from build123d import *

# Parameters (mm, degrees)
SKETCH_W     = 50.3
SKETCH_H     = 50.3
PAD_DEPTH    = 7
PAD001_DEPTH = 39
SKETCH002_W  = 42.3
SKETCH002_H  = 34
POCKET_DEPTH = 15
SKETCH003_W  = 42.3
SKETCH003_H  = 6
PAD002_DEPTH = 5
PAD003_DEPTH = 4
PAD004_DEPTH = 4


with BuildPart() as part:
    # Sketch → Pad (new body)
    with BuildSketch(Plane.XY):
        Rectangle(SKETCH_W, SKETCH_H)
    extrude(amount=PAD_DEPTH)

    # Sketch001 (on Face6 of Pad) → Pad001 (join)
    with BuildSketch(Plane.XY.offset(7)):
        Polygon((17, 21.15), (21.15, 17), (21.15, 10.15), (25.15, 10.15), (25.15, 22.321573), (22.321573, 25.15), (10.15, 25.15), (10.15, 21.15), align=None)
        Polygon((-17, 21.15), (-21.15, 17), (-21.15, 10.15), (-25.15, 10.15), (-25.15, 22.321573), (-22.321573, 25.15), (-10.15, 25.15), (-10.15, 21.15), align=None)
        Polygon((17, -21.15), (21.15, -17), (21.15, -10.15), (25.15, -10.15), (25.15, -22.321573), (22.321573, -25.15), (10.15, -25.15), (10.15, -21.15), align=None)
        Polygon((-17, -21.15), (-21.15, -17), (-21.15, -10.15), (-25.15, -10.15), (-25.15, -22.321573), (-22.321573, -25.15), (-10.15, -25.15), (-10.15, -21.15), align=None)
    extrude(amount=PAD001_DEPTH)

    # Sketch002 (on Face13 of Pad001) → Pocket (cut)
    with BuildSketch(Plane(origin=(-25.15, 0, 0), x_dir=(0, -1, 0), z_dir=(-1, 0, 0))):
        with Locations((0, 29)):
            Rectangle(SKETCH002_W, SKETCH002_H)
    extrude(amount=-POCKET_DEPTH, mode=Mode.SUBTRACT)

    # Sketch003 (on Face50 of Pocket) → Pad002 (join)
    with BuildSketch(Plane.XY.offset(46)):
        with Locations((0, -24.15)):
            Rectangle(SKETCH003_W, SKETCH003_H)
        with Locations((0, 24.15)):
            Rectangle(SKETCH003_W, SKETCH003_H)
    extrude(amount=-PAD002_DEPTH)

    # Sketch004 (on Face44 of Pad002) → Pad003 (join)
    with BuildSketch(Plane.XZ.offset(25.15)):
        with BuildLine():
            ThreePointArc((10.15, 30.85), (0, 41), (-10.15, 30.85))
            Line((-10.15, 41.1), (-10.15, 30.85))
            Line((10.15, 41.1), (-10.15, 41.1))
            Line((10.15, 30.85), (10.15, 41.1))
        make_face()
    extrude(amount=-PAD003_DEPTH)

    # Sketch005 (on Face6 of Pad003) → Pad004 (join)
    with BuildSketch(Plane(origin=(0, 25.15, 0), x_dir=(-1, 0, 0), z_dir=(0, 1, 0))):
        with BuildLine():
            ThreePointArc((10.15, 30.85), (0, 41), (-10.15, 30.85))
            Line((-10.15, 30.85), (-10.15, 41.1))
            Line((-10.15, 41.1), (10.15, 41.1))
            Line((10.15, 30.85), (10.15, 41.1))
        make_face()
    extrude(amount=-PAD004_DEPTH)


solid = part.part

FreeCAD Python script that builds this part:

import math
import FreeCAD as App
import Part
import Sketcher
Q = App.Units.Quantity

doc = App.newDocument("Part")
body = doc.addObject("PartDesign::Body", "Body")

sketch1 = body.newObject("Sketcher::SketchObject", "Sketch")
sketch1.AttachmentSupport = (doc.getObject("XY_Plane"), [""])
sketch1.MapMode = "FlatFace"
sketch1.addGeometry([
    Part.LineSegment(App.Vector(-25.15, 25.15, 0), App.Vector(-25.15, -25.15, 0)),
    Part.LineSegment(App.Vector(-25.15, -25.15, 0), App.Vector(25.15, -25.15, 0)),
    Part.LineSegment(App.Vector(25.15, -25.15, 0), App.Vector(25.15, 25.15, 0)),
    Part.LineSegment(App.Vector(25.15, 25.15, 0), App.Vector(-25.15, 25.15, 0)),
], False)
sketch1.addConstraint([
    Sketcher.Constraint("Coincident", 0, 2, 1, 1),
    Sketcher.Constraint("Coincident", 1, 2, 2, 1),
    Sketcher.Constraint("Coincident", 2, 2, 3, 1),
    Sketcher.Constraint("Coincident", 3, 2, 0, 1),
    Sketcher.Constraint("Vertical", 0),
    Sketcher.Constraint("Horizontal", 1),
    Sketcher.Constraint("Vertical", 2),
    Sketcher.Constraint("Horizontal", 3),
    Sketcher.Constraint("Symmetric", 0, 2, 2, 2, -1, 1),
    Sketcher.Constraint("Equal", 3, 0),
    Sketcher.Constraint("DistanceX", 1, 1, 1, 2, Q("50.3 mm")),
])
pad1 = body.newObject("PartDesign::Pad", "Pad")
pad1.Profile = sketch1
pad1.Length = 7

sketch2 = body.newObject("Sketcher::SketchObject", "Sketch001")
sketch2.AttachmentSupport = (doc.getObject("XY_Plane"), [""])
sketch2.MapMode = "FlatFace"
sketch2.AttachmentOffset = App.Placement(App.Vector(0, 0, 7), App.Rotation())
sketch2.addGeometry([
    Part.LineSegment(App.Vector(17, 21.15, 0), App.Vector(21.15, 17, 0)),
    Part.LineSegment(App.Vector(21.15, 17, 0), App.Vector(21.15, 10.15, 0)),
    Part.LineSegment(App.Vector(21.15, 10.15, 0), App.Vector(25.15, 10.15, 0)),
    Part.LineSegment(App.Vector(25.15, 10.15, 0), App.Vector(25.15, 22.321573, 0)),
    Part.LineSegment(App.Vector(25.15, 22.321573, 0), App.Vector(22.321573, 25.15, 0)),
    Part.LineSegment(App.Vector(22.321573, 25.15, 0), App.Vector(10.15, 25.15, 0)),
    Part.LineSegment(App.Vector(10.15, 25.15, 0), App.Vector(10.15, 21.15, 0)),
    Part.LineSegment(App.Vector(10.15, 21.15, 0), App.Vector(17, 21.15, 0)),
    Part.LineSegment(App.Vector(-21.15, 17, 0), App.Vector(-17, 21.15, 0)),
    Part.LineSegment(App.Vector(-17, 21.15, 0), App.Vector(-10.15, 21.15, 0)),
    Part.LineSegment(App.Vector(-10.15, 21.15, 0), App.Vector(-10.15, 25.15, 0)),
    Part.LineSegment(App.Vector(-10.15, 25.15, 0), App.Vector(-22.321573, 25.15, 0)),
    Part.LineSegment(App.Vector(-22.321573, 25.15, 0), App.Vector(-25.15, 22.321573, 0)),
    Part.LineSegment(App.Vector(-25.15, 22.321573, 0), App.Vector(-25.15, 10.15, 0)),
    Part.LineSegment(App.Vector(-25.15, 10.15, 0), App.Vector(-21.15, 10.15, 0)),
    Part.LineSegment(App.Vector(-21.15, 10.15, 0), App.Vector(-21.15, 17, 0)),
    Part.LineSegment(App.Vector(21.15, -17, 0), App.Vector(17, -21.15, 0)),
    Part.LineSegment(App.Vector(17, -21.15, 0), App.Vector(10.15, -21.15, 0)),
    Part.LineSegment(App.Vector(10.15, -21.15, 0), App.Vector(10.15, -25.15, 0)),
    Part.LineSegment(App.Vector(10.15, -25.15, 0), App.Vector(22.321573, -25.15, 0)),
    Part.LineSegment(App.Vector(22.321573, -25.15, 0), App.Vector(25.15, -22.321573, 0)),
    Part.LineSegment(App.Vector(25.15, -22.321573, 0), App.Vector(25.15, -10.15, 0)),
    Part.LineSegment(App.Vector(25.15, -10.15, 0), App.Vector(21.15, -10.15, 0)),
    Part.LineSegment(App.Vector(21.15, -10.15, 0), App.Vector(21.15, -17, 0)),
    Part.LineSegment(App.Vector(-17, -21.15, 0), App.Vector(-21.15, -17, 0)),
    Part.LineSegment(App.Vector(-21.15, -17, 0), App.Vector(-21.15, -10.15, 0)),
    Part.LineSegment(App.Vector(-21.15, -10.15, 0), App.Vector(-25.15, -10.15, 0)),
    Part.LineSegment(App.Vector(-25.15, -10.15, 0), App.Vector(-25.15, -22.321573, 0)),
    Part.LineSegment(App.Vector(-25.15, -22.321573, 0), App.Vector(-22.321573, -25.15, 0)),
    Part.LineSegment(App.Vector(-22.321573, -25.15, 0), App.Vector(-10.15, -25.15, 0)),
    Part.LineSegment(App.Vector(-10.15, -25.15, 0), App.Vector(-10.15, -21.15, 0)),
    Part.LineSegment(App.Vector(-10.15, -21.15, 0), App.Vector(-17, -21.15, 0)),
], False)
sketch2.addConstraint([
    Sketcher.Constraint("Coincident", 0, 2, 1, 1),
    Sketcher.Constraint("Coincident", 1, 2, 2, 1),
    Sketcher.Constraint("Coincident", 2, 2, 3, 1),
    Sketcher.Constraint("Coincident", 3, 2, 4, 1),
    Sketcher.Constraint("Coincident", 4, 2, 5, 1),
    Sketcher.Constraint("Coincident", 5, 2, 6, 1),
    Sketcher.Constraint("Coincident", 6, 2, 7, 1),
    Sketcher.Constraint("Coincident", 7, 2, 0, 1),
    Sketcher.Constraint("Coincident", 8, 2, 9, 1),
    Sketcher.Constraint("Coincident", 9, 2, 10, 1),
    Sketcher.Constraint("Coincident", 10, 2, 11, 1),
    Sketcher.Constraint("Coincident", 11, 2, 12, 1),
    Sketcher.Constraint("Coincident", 12, 2, 13, 1),
    Sketcher.Constraint("Coincident", 13, 2, 14, 1),
    Sketcher.Constraint("Coincident", 14, 2, 15, 1),
    Sketcher.Constraint("Coincident", 15, 2, 8, 1),
    Sketcher.Constraint("Coincident", 16, 2, 17, 1),
    Sketcher.Constraint("Coincident", 17, 2, 18, 1),
    Sketcher.Constraint("Coincident", 18, 2, 19, 1),
    Sketcher.Constraint("Coincident", 19, 2, 20, 1),
    Sketcher.Constraint("Coincident", 20, 2, 21, 1),
    Sketcher.Constraint("Coincident", 21, 2, 22, 1),
    Sketcher.Constraint("Coincident", 22, 2, 23, 1),
    Sketcher.Constraint("Coincident", 23, 2, 16, 1),
    Sketcher.Constraint("Coincident", 24, 2, 25, 1),
    Sketcher.Constraint("Coincident", 25, 2, 26, 1),
    Sketcher.Constraint("Coincident", 26, 2, 27, 1),
    Sketcher.Constraint("Coincident", 27, 2, 28, 1),
    Sketcher.Constraint("Coincident", 28, 2, 29, 1),
    Sketcher.Constraint("Coincident", 29, 2, 30, 1),
    Sketcher.Constraint("Coincident", 30, 2, 31, 1),
    Sketcher.Constraint("Coincident", 31, 2, 24, 1),
    Sketcher.Constraint("Vertical", 1),
    Sketcher.Constraint("Horizontal", 2),
    Sketcher.Constraint("Vertical", 3),
    Sketcher.Constraint("Horizontal", 5),
    Sketcher.Constraint("Vertical", 6),
    Sketcher.Constraint("Horizontal", 7),
    Sketcher.Constraint("Horizontal", 9),
    Sketcher.Constraint("Vertical", 10),
    Sketcher.Constraint("Horizontal", 11),
    Sketcher.Constraint("Vertical", 13),
    Sketcher.Constraint("Horizontal", 14),
    Sketcher.Constraint("Vertical", 15),
    Sketcher.Constraint("Horizontal", 17),
    Sketcher.Constraint("Vertical", 18),
    Sketcher.Constraint("Horizontal", 19),
    Sketcher.Constraint("Vertical", 21),
    Sketcher.Constraint("Horizontal", 22),
    Sketcher.Constraint("Vertical", 23),
    Sketcher.Constraint("Vertical", 25),
    Sketcher.Constraint("Horizontal", 26),
    Sketcher.Constraint("Vertical", 27),
    Sketcher.Constraint("Horizontal", 29),
    Sketcher.Constraint("Vertical", 30),
    Sketcher.Constraint("Horizontal", 31),
    Sketcher.Constraint("Symmetric", 8, 2, 16, 2, -1, 1),
    Sketcher.Constraint("Symmetric", 10, 2, 18, 2, -1, 1),
    Sketcher.Constraint("Symmetric", 12, 2, 20, 2, -1, 1),
    Sketcher.Constraint("Symmetric", 14, 2, 22, 2, -1, 1),
    Sketcher.Constraint("Symmetric", 0, 2, 24, 2, -1, 1),
    Sketcher.Constraint("Symmetric", 2, 2, 26, 2, -1, 1),
    Sketcher.Constraint("Symmetric", 4, 2, 28, 2, -1, 1),
    Sketcher.Constraint("Symmetric", 6, 2, 30, 2, -1, 1),
    Sketcher.Constraint("Symmetric", 7, 2, 8, 2, -2),
    Sketcher.Constraint("Symmetric", 5, 2, 10, 2, -2),
    Sketcher.Constraint("Symmetric", 3, 2, 12, 2, -2),
    Sketcher.Constraint("Symmetric", 1, 2, 14, 2, -2),
    Sketcher.Constraint("Parallel", 0, 4),
    Sketcher.Constraint("Perpendicular", 4, 8),
    Sketcher.Constraint("Parallel", 8, 12),
    Sketcher.Constraint("Parallel", 12, 16),
    Sketcher.Constraint("Parallel", 16, 20),
    Sketcher.Constraint("Perpendicular", 20, 24),
    Sketcher.Constraint("Parallel", 24, 28),
    Sketcher.Constraint("Horizontal", 0, 2, 15, 2),
    Sketcher.Constraint("Equal", 31, 1),
    Sketcher.Constraint("Equal", 29, 3),
    Sketcher.Constraint("DistanceX", 2, 1, 2, 2, Q("4 mm")),
    Sketcher.Constraint("Distance", 4, Q("4 mm")),
    Sketcher.Constraint("DistanceY", -1, 1, 0, 2, Q("17 mm")),
    Sketcher.Constraint("DistanceX", -1, 1, 7, 2, Q("17 mm")),
    Sketcher.Constraint("DistanceY", 1, 2, 4, 2, Q("15 mm")),
    Sketcher.Constraint("DistanceX", 7, 1, 7, 2, Q("6.85 mm")),
])
pad2 = body.newObject("PartDesign::Pad", "Pad001")
pad2.Profile = sketch2
pad2.Length = 39

sketch3 = body.newObject("Sketcher::SketchObject", "Sketch002")
sketch3.AttachmentSupport = (doc.getObject("YZ_Plane"), [""])
sketch3.MapMode = "FlatFace"
sketch3.AttachmentOffset = App.Placement(App.Vector(0, 0, -25.15), App.Rotation())
sketch3.addGeometry([
    Part.LineSegment(App.Vector(21.15, 46, 0), App.Vector(21.15, 12, 0)),
    Part.LineSegment(App.Vector(21.15, 12, 0), App.Vector(-21.15, 12, 0)),
    Part.LineSegment(App.Vector(-21.15, 12, 0), App.Vector(-21.15, 46, 0)),
    Part.LineSegment(App.Vector(-21.15, 46, 0), App.Vector(21.15, 46, 0)),
], False)
sketch3.addConstraint([
    Sketcher.Constraint("Coincident", 0, 2, 1, 1),
    Sketcher.Constraint("Coincident", 1, 2, 2, 1),
    Sketcher.Constraint("Coincident", 2, 2, 3, 1),
    Sketcher.Constraint("Coincident", 3, 2, 0, 1),
    Sketcher.Constraint("Vertical", 0),
    Sketcher.Constraint("Horizontal", 1),
    Sketcher.Constraint("Vertical", 2),
    Sketcher.Constraint("Horizontal", 3),
    Sketcher.Constraint("DistanceY", 0, 2, 0, 1, Q("34 mm")),
    Sketcher.Constraint("DistanceX", 1, 2, 1, 1, Q("42.3 mm")),
    Sketcher.Constraint("DistanceY", -1, 1, 0, 2, Q("12 mm")),
    Sketcher.Constraint("DistanceX", -1, 1, 0, 2, Q("21.15 mm")),
])
pocket1 = body.newObject("PartDesign::Pocket", "Pocket")
pocket1.Profile = sketch3
pocket1.Length = 15
pocket1.Reversed = True

sketch4 = body.newObject("Sketcher::SketchObject", "Sketch003")
sketch4.AttachmentSupport = (doc.getObject("XY_Plane"), [""])
sketch4.MapMode = "FlatFace"
sketch4.AttachmentOffset = App.Placement(App.Vector(0, 0, 46), App.Rotation())
sketch4.addGeometry([
    Part.LineSegment(App.Vector(-21.15, -21.15, 0), App.Vector(-21.15, -27.15, 0)),
    Part.LineSegment(App.Vector(-21.15, -27.15, 0), App.Vector(21.15, -27.15, 0)),
    Part.LineSegment(App.Vector(21.15, -27.15, 0), App.Vector(21.15, -21.15, 0)),
    Part.LineSegment(App.Vector(21.15, -21.15, 0), App.Vector(-21.15, -21.15, 0)),
    Part.LineSegment(App.Vector(-21.15, 27.15, 0), App.Vector(-21.15, 21.15, 0)),
    Part.LineSegment(App.Vector(-21.15, 21.15, 0), App.Vector(21.15, 21.15, 0)),
    Part.LineSegment(App.Vector(21.15, 21.15, 0), App.Vector(21.15, 27.15, 0)),
    Part.LineSegment(App.Vector(21.15, 27.15, 0), App.Vector(-21.15, 27.15, 0)),
], False)
sketch4.addConstraint([
    Sketcher.Constraint("Coincident", 0, 2, 1, 1),
    Sketcher.Constraint("Coincident", 1, 2, 2, 1),
    Sketcher.Constraint("Coincident", 2, 2, 3, 1),
    Sketcher.Constraint("Coincident", 3, 2, 0, 1),
    Sketcher.Constraint("Coincident", 4, 2, 5, 1),
    Sketcher.Constraint("Coincident", 5, 2, 6, 1),
    Sketcher.Constraint("Coincident", 6, 2, 7, 1),
    Sketcher.Constraint("Coincident", 7, 2, 4, 1),
    Sketcher.Constraint("Vertical", 0),
    Sketcher.Constraint("Horizontal", 1),
    Sketcher.Constraint("Vertical", 2),
    Sketcher.Constraint("Horizontal", 3),
    Sketcher.Constraint("Vertical", 4),
    Sketcher.Constraint("Horizontal", 5),
    Sketcher.Constraint("Vertical", 6),
    Sketcher.Constraint("Horizontal", 7),
    Sketcher.Constraint("Symmetric", 2, 2, 4, 2, -1, 1),
    Sketcher.Constraint("Symmetric", 0, 2, 6, 2, -1, 1),
    Sketcher.Constraint("Vertical", 3, 2, 4, 2),
    Sketcher.Constraint("DistanceY", 0, 2, 0, 1, Q("6 mm")),
    Sketcher.Constraint("DistanceX", 1, 1, 1, 2, Q("42.3 mm")),
    Sketcher.Constraint("DistanceY", 3, 2, 4, 2, Q("42.3 mm")),
])
pad3 = body.newObject("PartDesign::Pad", "Pad002")
pad3.Profile = sketch4
pad3.Length = 5
pad3.Reversed = True

sketch5 = body.newObject("Sketcher::SketchObject", "Sketch004")
sketch5.AttachmentSupport = (doc.getObject("XZ_Plane"), [""])
sketch5.MapMode = "FlatFace"
sketch5.AttachmentOffset = App.Placement(App.Vector(0, 0, 25.15), App.Rotation())
sketch5.addGeometry([
    Part.ArcOfCircle(Part.Circle(App.Vector(0, 30.85, 0), App.Vector(0, 0, 1), 10.15), math.radians(0), math.radians(180)),
    Part.LineSegment(App.Vector(10.15, 30.85, 0), App.Vector(10.15, 41.1, 0)),
    Part.LineSegment(App.Vector(10.15, 41.1, 0), App.Vector(-10.15, 41.1, 0)),
    Part.LineSegment(App.Vector(-10.15, 41.1, 0), App.Vector(-10.15, 30.85, 0)),
], False)
sketch5.addConstraint([
    Sketcher.Constraint("Tangent", 0, 1, 1, 1),
    Sketcher.Constraint("Coincident", 1, 2, 2, 1),
    Sketcher.Constraint("Coincident", 2, 2, 3, 1),
    Sketcher.Constraint("Tangent", 3, 2, 0, 2),
    Sketcher.Constraint("Vertical", 1),
    Sketcher.Constraint("Horizontal", 2),
    Sketcher.Constraint("Vertical", 3),
    Sketcher.Constraint("PointOnObject", 0, 3, -2),
    Sketcher.Constraint("Radius", 0, Q("10.15 mm")),
    Sketcher.Constraint("DistanceY", 1, 1, 1, 2, Q("10.25 mm")),
    Sketcher.Constraint("DistanceY", -1, 1, 1, 2, Q("41.1 mm")),
])
pad4 = body.newObject("PartDesign::Pad", "Pad003")
pad4.Profile = sketch5
pad4.Length = 4
pad4.Reversed = True

sketch6 = body.newObject("Sketcher::SketchObject", "Sketch005")
sketch6.AttachmentSupport = (doc.getObject("XZ_Plane"), [""])
sketch6.MapMode = "FlatFace"
sketch6.AttachmentOffset = App.Placement(App.Vector(0, 0, -25.15), App.Rotation())
sketch6.addGeometry([
    Part.ArcOfCircle(Part.Circle(App.Vector(0, 30.85, 0), App.Vector(0, 0, 1), 10.15), math.radians(0), math.radians(180)),
    Part.LineSegment(App.Vector(-10.15, 30.85, 0), App.Vector(-10.15, 41.1, 0)),
    Part.LineSegment(App.Vector(-10.15, 41.1, 0), App.Vector(10.15, 41.1, 0)),
    Part.LineSegment(App.Vector(10.15, 41.1, 0), App.Vector(10.15, 30.85, 0)),
], False)
sketch6.addConstraint([
    Sketcher.Constraint("Tangent", 0, 2, 1, 1),
    Sketcher.Constraint("Coincident", 1, 2, 2, 1),
    Sketcher.Constraint("Coincident", 2, 2, 3, 1),
    Sketcher.Constraint("Tangent", 3, 2, 0, 1),
    Sketcher.Constraint("Vertical", 1),
    Sketcher.Constraint("Horizontal", 2),
    Sketcher.Constraint("Vertical", 3),
    Sketcher.Constraint("PointOnObject", 0, 3, -2),
    Sketcher.Constraint("Radius", 0, Q("10.15 mm")),
    Sketcher.Constraint("DistanceY", 1, 1, 1, 2, Q("10.25 mm")),
    Sketcher.Constraint("DistanceY", -1, 1, 1, 2, Q("41.1 mm")),
])
pad5 = body.newObject("PartDesign::Pad", "Pad004")
pad5.Profile = sketch6
pad5.Length = 4

doc.recompute()
